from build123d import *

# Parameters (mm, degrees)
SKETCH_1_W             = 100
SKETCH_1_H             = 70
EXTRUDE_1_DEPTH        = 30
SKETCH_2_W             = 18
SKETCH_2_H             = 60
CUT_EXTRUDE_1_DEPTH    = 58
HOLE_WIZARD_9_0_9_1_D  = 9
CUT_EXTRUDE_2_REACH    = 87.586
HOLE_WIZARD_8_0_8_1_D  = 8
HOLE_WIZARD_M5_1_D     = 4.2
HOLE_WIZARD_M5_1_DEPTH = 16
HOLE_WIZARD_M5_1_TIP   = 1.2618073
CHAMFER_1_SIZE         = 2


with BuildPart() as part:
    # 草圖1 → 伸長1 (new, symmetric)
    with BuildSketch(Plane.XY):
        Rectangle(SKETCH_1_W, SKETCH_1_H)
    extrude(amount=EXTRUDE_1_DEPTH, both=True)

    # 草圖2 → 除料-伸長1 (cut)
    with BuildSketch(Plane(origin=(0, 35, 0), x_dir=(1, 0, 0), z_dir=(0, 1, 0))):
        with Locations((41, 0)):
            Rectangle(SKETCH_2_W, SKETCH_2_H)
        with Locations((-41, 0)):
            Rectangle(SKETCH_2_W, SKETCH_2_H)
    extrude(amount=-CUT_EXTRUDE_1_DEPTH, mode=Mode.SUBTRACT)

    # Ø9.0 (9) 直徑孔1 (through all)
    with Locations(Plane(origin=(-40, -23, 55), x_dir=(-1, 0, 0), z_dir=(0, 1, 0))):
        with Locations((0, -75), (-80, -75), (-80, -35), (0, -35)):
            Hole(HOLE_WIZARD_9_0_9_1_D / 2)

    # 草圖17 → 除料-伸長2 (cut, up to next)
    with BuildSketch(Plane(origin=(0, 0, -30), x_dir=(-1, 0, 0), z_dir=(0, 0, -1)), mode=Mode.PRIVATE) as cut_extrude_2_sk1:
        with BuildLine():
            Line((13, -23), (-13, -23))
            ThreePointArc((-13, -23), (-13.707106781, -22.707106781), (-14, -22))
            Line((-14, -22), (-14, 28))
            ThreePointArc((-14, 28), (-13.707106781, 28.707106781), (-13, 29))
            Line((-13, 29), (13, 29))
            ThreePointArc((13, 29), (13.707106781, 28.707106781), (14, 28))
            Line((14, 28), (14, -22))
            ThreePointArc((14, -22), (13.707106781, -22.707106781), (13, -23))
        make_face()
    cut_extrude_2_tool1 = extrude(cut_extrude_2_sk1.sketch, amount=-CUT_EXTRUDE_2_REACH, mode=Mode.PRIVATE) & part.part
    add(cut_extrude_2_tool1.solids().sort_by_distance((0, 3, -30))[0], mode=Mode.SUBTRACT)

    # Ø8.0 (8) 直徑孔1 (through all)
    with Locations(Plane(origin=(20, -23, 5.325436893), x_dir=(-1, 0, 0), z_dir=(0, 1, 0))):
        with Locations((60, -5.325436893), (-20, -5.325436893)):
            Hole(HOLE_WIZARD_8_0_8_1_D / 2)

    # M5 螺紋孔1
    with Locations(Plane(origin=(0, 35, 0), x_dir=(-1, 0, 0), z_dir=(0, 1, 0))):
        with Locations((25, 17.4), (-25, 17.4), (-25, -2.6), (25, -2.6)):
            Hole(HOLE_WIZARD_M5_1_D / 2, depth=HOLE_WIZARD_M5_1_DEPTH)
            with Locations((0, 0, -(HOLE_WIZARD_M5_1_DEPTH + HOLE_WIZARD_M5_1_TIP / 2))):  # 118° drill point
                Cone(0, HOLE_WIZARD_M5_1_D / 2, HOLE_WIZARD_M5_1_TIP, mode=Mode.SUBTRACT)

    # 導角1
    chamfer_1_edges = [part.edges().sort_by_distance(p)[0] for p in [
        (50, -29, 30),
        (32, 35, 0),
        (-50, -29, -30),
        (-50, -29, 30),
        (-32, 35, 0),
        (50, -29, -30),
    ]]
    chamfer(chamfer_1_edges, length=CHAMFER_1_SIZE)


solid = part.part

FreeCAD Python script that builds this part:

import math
import FreeCAD as App
import Part
import Sketcher

V = App.Vector


def edges_at(feature, points):
    """Names of the edges that pass closest to the given points."""
    edges = feature.Shape.Edges
    near = lambda p: min(range(len(edges)), key=lambda i: edges[i].distToShape(Part.Vertex(*p))[0])
    return sorted({f"Edge{near(p) + 1}" for p in points})


def add_polygon(sketch, points):
    """Adds a closed chain of lines whose ends are joined by coincident constraints."""
    first, n = sketch.GeometryCount, len(points)
    for a, b in zip(points, points[1:] + points[:1]):
        sketch.addGeometry(Part.LineSegment(App.Vector(*a, 0), App.Vector(*b, 0)), False)
    for i in range(n):
        sketch.addConstraint(Sketcher.Constraint("Coincident", first + i, 2, first + (i + 1) % n, 1))

doc = App.newDocument("Part")
params = doc.addObject("Spreadsheet::Sheet", "Params")
for row, (alias, value) in enumerate([
    ("sketch1_width", "100 mm"),
    ("sketch1_height", "70 mm"),
    ("pad1_length", "60 mm"),
    ("sketch2_width", "18 mm"),
    ("sketch2_height", "60 mm"),
    ("pocket1_length", "58 mm"),
    ("sketch3_diameter", "9 mm"),
    ("hole_diameter", "9 mm"),
    ("sketch4_radius", "1 mm"),
    ("sketch4_width", "26 mm"),
    ("sketch4_height", "50 mm"),
    ("sketch5_diameter", "8 mm"),
    ("hole2_diameter", "8 mm"),
    ("sketch6_diameter", "4.2 mm"),
    ("hole3_diameter", "4.2 mm"),
    ("hole3_depth", "16 mm"),
    ("chamfer_size", "2 mm"),
], start=1):
    params.set(f"A{row}", alias)
    params.set(f"B{row}", "=" + value)
    params.setAlias(f"B{row}", alias)

body = doc.addObject("PartDesign::Body", "Body")

sketch1 = body.newObject("Sketcher::SketchObject", "Sketch")
sketch1.AttachmentSupport = (doc.getObject("XY_Plane"), [""])
sketch1.MapMode = "FlatFace"
add_polygon(sketch1, [(-50, 35), (-50, -35), (50, -35), (50, 35)])
sketch1.addConstraint(Sketcher.Constraint("Vertical", 0))
sketch1.addConstraint(Sketcher.Constraint("Horizontal", 1))
sketch1.addConstraint(Sketcher.Constraint("Vertical", 2))
sketch1.addConstraint(Sketcher.Constraint("Horizontal", 3))
sketch1.addConstraint(Sketcher.Constraint("Symmetric", 0, 2, 2, 2, -1, 1))
sketch1.addConstraint(Sketcher.Constraint("DistanceX", 1, 1, 1, 2, 100.0))
sketch1.addConstraint(Sketcher.Constraint("DistanceY", 0, 2, 0, 1, 70.0))
sketch1.setExpression("Constraints[9]", "Params.sketch1_width")
sketch1.setExpression("Constraints[10]", "Params.sketch1_height")
pad1 = body.newObject("PartDesign::Pad", "Pad")
pad1.Profile = sketch1
pad1.setExpression("Length", "Params.pad1_length")
pad1.Midplane = True

sketch2 = body.newObject("Sketcher::SketchObject", "Sketch001")
sketch2.AttachmentSupport = (doc.getObject("XZ_Plane"), [""])
sketch2.MapMode = "FlatFace"
sketch2.AttachmentOffset = App.Placement(V(0, 0, -35), App.Rotation())
add_polygon(sketch2, [(32, -30), (32, 30), (50, 30), (50, -30)])
add_polygon(sketch2, [(-50, -30), (-50, 30), (-32, 30), (-32, -30)])
sketch2.addConstraint(Sketcher.Constraint("Vertical", 0))
sketch2.addConstraint(Sketcher.Constraint("Horizontal", 1))
sketch2.addConstraint(Sketcher.Constraint("Vertical", 2))
sketch2.addConstraint(Sketcher.Constraint("Horizontal", 3))
sketch2.addConstraint(Sketcher.Constraint("Vertical", 4))
sketch2.addConstraint(Sketcher.Constraint("Horizontal", 5))
sketch2.addConstraint(Sketcher.Constraint("Vertical", 6))
sketch2.addConstraint(Sketcher.Constraint("Horizontal", 7))
sketch2.addConstraint(Sketcher.Constraint("Symmetric", 2, 2, 4, 2, -1, 1))
sketch2.addConstraint(Sketcher.Constraint("Symmetric", 0, 2, 6, 2, -1, 1))
sketch2.addConstraint(Sketcher.Constraint("Horizontal", 1, 2, 4, 2))
sketch2.addConstraint(Sketcher.Constraint("DistanceX", 1, 1, 1, 2, 18.0))
sketch2.addConstraint(Sketcher.Constraint("DistanceY", 0, 1, 0, 2, 60.0))
sketch2.addConstraint(Sketcher.Constraint("DistanceX", -1, 1, 0, 2, 32.0))
sketch2.setExpression("Constraints[19]", "Params.sketch2_width")
sketch2.setExpression("Constraints[20]", "Params.sketch2_height")
pocket1 = body.newObject("PartDesign::Pocket", "Pocket")
pocket1.Profile = sketch2
pocket1.setExpression("Length", "Params.pocket1_length")
pocket1.Reversed = True

sketch3 = body.newObject("Sketcher::SketchObject", "Sketch002")
sketch3.AttachmentSupport = (doc.getObject("XZ_Plane"), [""])
sketch3.MapMode = "FlatFace"
sketch3.AttachmentOffset = App.Placement(V(0, 0, 23), App.Rotation())
sketch3.addGeometry(Part.Circle(V(-40, -20, 0), V(0, 0, 1), 4.5), False)
sketch3.addGeometry(Part.Circle(V(40, -20, 0), V(0, 0, 1), 4.5), False)
sketch3.addGeometry(Part.Circle(V(40, 20, 0), V(0, 0, 1), 4.5), False)
sketch3.addGeometry(Part.Circle(V(-40, 20, 0), V(0, 0, 1), 4.5), False)
sketch3.addConstraint(Sketcher.Constraint("Equal", 0, 1))
sketch3.addConstraint(Sketcher.Constraint("Equal", 1, 2))
sketch3.addConstraint(Sketcher.Constraint("Equal", 2, 3))
sketch3.addConstraint(Sketcher.Constraint("Symmetric", 0, 3, 2, 3, -1, 1))
sketch3.addConstraint(Sketcher.Constraint("Symmetric", 1, 3, 3, 3, -1, 1))
sketch3.addConstraint(Sketcher.Constraint("Symmetric", 0, 3, 1, 3, -2))
sketch3.addConstraint(Sketcher.Constraint("Diameter", 0, 9.0))
sketch3.addConstraint(Sketcher.Constraint("DistanceX", 0, 3, -1, 1, 40.0))
sketch3.addConstraint(Sketcher.Constraint("DistanceY", 0, 3, -1, 1, 20.0))
sketch3.setExpression("Constraints[6]", "Params.sketch3_diameter")
doc.recompute()
hole = body.newObject("PartDesign::Hole", "Hole")
hole.Profile = sketch3
hole.ThreadType = "None"
hole.setExpression("Diameter", "Params.hole_diameter")
hole.DepthType = "ThroughAll"
hole.Reversed = True

sketch4 = body.newObject("Sketcher::SketchObject", "Sketch003")
sketch4.AttachmentSupport = (doc.getObject("XY_Plane"), [""])
sketch4.MapMode = "FlatFace"
sketch4.AttachmentOffset = App.Placement(V(0, 0, -30), App.Rotation())
sketch4.addGeometry(Part.LineSegment(V(13, -23, 0), V(-13, -23, 0)), False)
sketch4.addGeometry(Part.ArcOfCircle(Part.Circle(V(-13, -22, 0), V(0, 0, 1), 1), math.radians(-180), math.radians(-90)), False)
sketch4.addGeometry(Part.LineSegment(V(-14, -22, 0), V(-14, 28, 0)), False)
sketch4.addGeometry(Part.ArcOfCircle(Part.Circle(V(-13, 28, 0), V(0, 0, 1), 1), math.radians(90), math.radians(180)), False)
sketch4.addGeometry(Part.LineSegment(V(-13, 29, 0), V(13, 29, 0)), False)
sketch4.addGeometry(Part.ArcOfCircle(Part.Circle(V(13, 28, 0), V(0, 0, 1), 1), math.radians(0), math.radians(90)), False)
sketch4.addGeometry(Part.LineSegment(V(14, 28, 0), V(14, -22, 0)), False)
sketch4.addGeometry(Part.ArcOfCircle(Part.Circle(V(13, -22, 0), V(0, 0, 1), 1), math.radians(-90), math.radians(0)), False)
sketch4.addConstraint(Sketcher.Constraint("Tangent", 0, 2, 1, 2))
sketch4.addConstraint(Sketcher.Constraint("Tangent", 1, 1, 2, 1))
sketch4.addConstraint(Sketcher.Constraint("Tangent", 2, 2, 3, 2))
sketch4.addConstraint(Sketcher.Constraint("Tangent", 3, 1, 4, 1))
sketch4.addConstraint(Sketcher.Constraint("Tangent", 4, 2, 5, 2))
sketch4.addConstraint(Sketcher.Constraint("Tangent", 5, 1, 6, 1))
sketch4.addConstraint(Sketcher.Constraint("Tangent", 6, 2, 7, 2))
sketch4.addConstraint(Sketcher.Constraint("Tangent", 7, 1, 0, 1))
sketch4.addConstraint(Sketcher.Constraint("Horizontal", 0))
sketch4.addConstraint(Sketcher.Constraint("Vertical", 2))
sketch4.addConstraint(Sketcher.Constraint("Horizontal", 4))
sketch4.addConstraint(Sketcher.Constraint("Vertical", 6))
sketch4.addConstraint(Sketcher.Constraint("Equal", 1, 3))
sketch4.addConstraint(Sketcher.Constraint("Equal", 3, 5))
sketch4.addConstraint(Sketcher.Constraint("Equal", 5, 7))
sketch4.addConstraint(Sketcher.Constraint("Radius", 1, 1.0))
sketch4.addConstraint(Sketcher.Constraint("DistanceX", 0, 2, 0, 1, 26.0))
sketch4.addConstraint(Sketcher.Constraint("DistanceY", 2, 1, 2, 2, 50.0))
sketch4.addConstraint(Sketcher.Constraint("DistanceX", 1, 3, -1, 1, 13.0))
sketch4.addConstraint(Sketcher.Constraint("DistanceY", 1, 3, -1, 1, 22.0))
sketch4.setExpression("Constraints[15]", "Params.sketch4_radius")
sketch4.setExpression("Constraints[16]", "Params.sketch4_width")
sketch4.setExpression("Constraints[17]", "Params.sketch4_height")
pocket2 = body.newObject("PartDesign::Pocket", "Pocket001")
pocket2.Profile = sketch4
pocket2.Type = "UpToFirst"
pocket2.Reversed = True

sketch5 = body.newObject("Sketcher::SketchObject", "Sketch004")
sketch5.AttachmentSupport = (doc.getObject("XZ_Plane"), [""])
sketch5.MapMode = "FlatFace"
sketch5.AttachmentOffset = App.Placement(V(0, 0, 23), App.Rotation())
sketch5.addGeometry(Part.Circle(V(-40, 0, 0), V(0, 0, 1), 4), False)
sketch5.addGeometry(Part.Circle(V(40, 0, 0), V(0, 0, 1), 4), False)
sketch5.addConstraint(Sketcher.Constraint("Equal", 0, 1))
sketch5.addConstraint(Sketcher.Constraint("Symmetric", 0, 3, 1, 3, -1, 1))
sketch5.addConstraint(Sketcher.Constraint("PointOnObject", 0, 3, -1))
sketch5.addConstraint(Sketcher.Constraint("Diameter", 0, 8.0))
sketch5.addConstraint(Sketcher.Constraint("DistanceX", 0, 3, -1, 1, 40.0))
sketch5.setExpression("Constraints[3]", "Params.sketch5_diameter")
doc.recompute()
hole2 = body.newObject("PartDesign::Hole", "Hole001")
hole2.Profile = sketch5
hole2.ThreadType = "None"
hole2.setExpression("Diameter", "Params.hole2_diameter")
hole2.DepthType = "ThroughAll"
hole2.Reversed = True

sketch6 = body.newObject("Sketcher::SketchObject", "Sketch005")
sketch6.AttachmentSupport = (doc.getObject("XZ_Plane"), [""])
sketch6.MapMode = "FlatFace"
sketch6.AttachmentOffset = App.Placement(V(0, 0, -35), App.Rotation())
sketch6.addGeometry(Part.Circle(V(-25, 17.4, 0), V(0, 0, 1), 2.1), False)
sketch6.addGeometry(Part.Circle(V(25, 17.4, 0), V(0, 0, 1), 2.1), False)
sketch6.addGeometry(Part.Circle(V(25, -2.6, 0), V(0, 0, 1), 2.1), False)
sketch6.addGeometry(Part.Circle(V(-25, -2.6, 0), V(0, 0, 1), 2.1), False)
sketch6.addConstraint(Sketcher.Constraint("Equal", 0, 1))
sketch6.addConstraint(Sketcher.Constraint("Equal", 1, 2))
sketch6.addConstraint(Sketcher.Constraint("Equal", 2, 3))
sketch6.addConstraint(Sketcher.Constraint("Symmetric", 0, 3, 1, 3, -2))
sketch6.addConstraint(Sketcher.Constraint("Symmetric", 2, 3, 3, 3, -2))
sketch6.addConstraint(Sketcher.Constraint("Vertical", 1, 3, 2, 3))
sketch6.addConstraint(Sketcher.Constraint("Diameter", 0, 4.2))
sketch6.addConstraint(Sketcher.Constraint("DistanceX", 0, 3, -1, 1, 25.0))
sketch6.addConstraint(Sketcher.Constraint("DistanceY", 2, 3, 1, 3, 20.0))
sketch6.addConstraint(Sketcher.Constraint("DistanceY", -1, 1, 0, 3, 17.4))
sketch6.setExpression("Constraints[6]", "Params.sketch6_diameter")
doc.recompute()
hole3 = body.newObject("PartDesign::Hole", "Hole002")
hole3.Profile = sketch6
hole3.ThreadType = "None"
hole3.setExpression("Diameter", "Params.hole3_diameter")
hole3.DepthType = "Dimension"
hole3.setExpression("Depth", "Params.hole3_depth")
hole3.DrillPoint = "Angled"
hole3.DrillPointAngle = 118
hole3.Reversed = True
doc.recompute()

chamfer = body.newObject("PartDesign::Chamfer", "Chamfer")
chamfer.Base = (hole3, edges_at(hole3, [
    (50, -29, 30),
    (32, 35, 0),
    (-50, -29, -30),
    (-50, -29, 30),
    (-32, 35, 0),
    (50, -29, -30),
]))
chamfer.setExpression("Size", "Params.chamfer_size")

doc.recompute()
